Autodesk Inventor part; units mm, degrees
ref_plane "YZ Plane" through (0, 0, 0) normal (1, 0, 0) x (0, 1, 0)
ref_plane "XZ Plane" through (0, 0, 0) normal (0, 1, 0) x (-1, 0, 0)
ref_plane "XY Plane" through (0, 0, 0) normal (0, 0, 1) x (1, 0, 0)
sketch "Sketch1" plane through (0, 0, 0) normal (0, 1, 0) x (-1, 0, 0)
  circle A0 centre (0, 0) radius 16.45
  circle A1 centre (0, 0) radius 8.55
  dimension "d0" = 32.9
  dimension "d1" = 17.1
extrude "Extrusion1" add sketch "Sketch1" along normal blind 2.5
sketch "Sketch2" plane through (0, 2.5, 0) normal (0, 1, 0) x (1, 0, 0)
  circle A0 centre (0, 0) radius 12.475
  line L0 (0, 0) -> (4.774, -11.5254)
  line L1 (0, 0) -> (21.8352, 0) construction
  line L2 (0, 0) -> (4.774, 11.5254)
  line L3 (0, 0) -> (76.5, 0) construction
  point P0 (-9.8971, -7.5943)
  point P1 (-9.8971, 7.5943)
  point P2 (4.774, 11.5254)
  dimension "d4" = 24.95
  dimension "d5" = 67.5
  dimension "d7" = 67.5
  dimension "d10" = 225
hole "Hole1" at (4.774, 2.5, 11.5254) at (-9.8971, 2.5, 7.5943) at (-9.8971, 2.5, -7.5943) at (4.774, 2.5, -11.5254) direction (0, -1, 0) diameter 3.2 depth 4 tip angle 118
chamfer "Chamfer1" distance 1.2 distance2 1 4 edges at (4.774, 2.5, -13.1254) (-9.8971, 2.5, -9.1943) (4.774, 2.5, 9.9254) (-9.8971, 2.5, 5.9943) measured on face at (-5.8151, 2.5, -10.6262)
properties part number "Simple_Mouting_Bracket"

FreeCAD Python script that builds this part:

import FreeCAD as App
import Part
import Sketcher


def edges_at(feature, points):
    """Names of the edges that pass closest to the given points."""
    edges = feature.Shape.Edges
    near = lambda p: min(range(len(edges)), key=lambda i: edges[i].distToShape(Part.Vertex(*p))[0])
    return sorted({f"Edge{near(p) + 1}" for p in points})

doc = App.newDocument("Part")
params = doc.addObject("Spreadsheet::Sheet", "Params")
for row, (alias, value) in enumerate([
    ("sketch1_diameter", "32.9 mm"),
    ("sketch1_diameter2", "17.1 mm"),
    ("pad1_length", "2.5 mm"),
    ("sketch2_diameter", "3.2 mm"),
    ("hole_diameter", "3.2 mm"),
    ("hole_depth", "4 mm"),
    ("chamfer_size", "1.2 mm"),
    ("chamfer_size2", "1 mm"),
], start=1):
    params.set(f"A{row}", alias)
    params.set(f"B{row}", "=" + value)
    params.setAlias(f"B{row}", alias)

body = doc.addObject("PartDesign::Body", "Body")

sketch1 = body.newObject("Sketcher::SketchObject", "Sketch")
sketch1.AttachmentSupport = (doc.getObject("XZ_Plane"), [""])
sketch1.MapMode = "FlatFace"
sketch1.addGeometry([
    Part.Circle(App.Vector(0, 0, 0), App.Vector(0, 0, 1), 16.45),
    Part.Circle(App.Vector(0, 0, 0), App.Vector(0, 0, 1), 8.55),
], False)
sketch1.addConstraint([
    Sketcher.Constraint("Coincident", 0, 3, -1, 1),
    Sketcher.Constraint("Coincident", 1, 3, -1, 1),
    Sketcher.Constraint("Diameter", 0, 32.9),
    Sketcher.Constraint("Diameter", 1, 17.1),
])
sketch1.setExpression("Constraints[2]", "Params.sketch1_diameter")
sketch1.setExpression("Constraints[3]", "Params.sketch1_diameter2")
pad1 = body.newObject("PartDesign::Pad", "Pad")
pad1.Profile = sketch1
pad1.setExpression("Length", "Params.pad1_length")
pad1.Reversed = True

sketch2 = body.newObject("Sketcher::SketchObject", "Sketch001")
sketch2.AttachmentSupport = (doc.getObject("XZ_Plane"), [""])
sketch2.MapMode = "FlatFace"
sketch2.AttachmentOffset = App.Placement(App.Vector(0, 0, -2.5), App.Rotation())
sketch2.addGeometry([
    Part.Circle(App.Vector(4.774, 11.5254, 0), App.Vector(0, 0, 1), 1.6),
    Part.Circle(App.Vector(-9.8971, 7.5943, 0), App.Vector(0, 0, 1), 1.6),
    Part.Circle(App.Vector(-9.8971, -7.5943, 0), App.Vector(0, 0, 1), 1.6),
    Part.Circle(App.Vector(4.774, -11.5254, 0), App.Vector(0, 0, 1), 1.6),
], False)
sketch2.addConstraint([
    Sketcher.Constraint("Equal", 0, 1),
    Sketcher.Constraint("Equal", 1, 2),
    Sketcher.Constraint("Equal", 2, 3),
    Sketcher.Constraint("Symmetric", 1, 3, 2, 3, -1),
    Sketcher.Constraint("Symmetric", 0, 3, 3, 3, -1),
    Sketcher.Constraint("Diameter", 0, 3.2),
    Sketcher.Constraint("DistanceX", -1, 1, 0, 3, 4.774),
    Sketcher.Constraint("DistanceX", 1, 3, -1, 1, 9.897),
    Sketcher.Constraint("DistanceY", 1, 3, 0, 3, 3.931),
    Sketcher.Constraint("DistanceY", -1, 1, 0, 3, 11.5254),
])
sketch2.setExpression("Constraints[5]", "Params.sketch2_diameter")
doc.recompute()
hole = body.newObject("PartDesign::Hole", "Hole")
hole.Profile = sketch2
hole.ThreadType = "None"
hole.setExpression("Diameter", "Params.hole_diameter")
hole.DepthType = "Dimension"
hole.setExpression("Depth", "Params.hole_depth")
hole.DrillPoint = "Angled"
hole.DrillPointAngle = 118
hole.Reversed = True
doc.recompute()

chamfer = body.newObject("PartDesign::Chamfer", "Chamfer")
chamfer.Base = (hole, edges_at(hole, [
    (4.774, 2.5, -13.125),
    (-9.897, 2.5, -9.194),
    (4.774, 2.5, 9.925),
    (-9.897, 2.5, 5.994),
]))
chamfer.ChamferType = "Two distances"
chamfer.setExpression("Size", "Params.chamfer_size")
chamfer.setExpression("Size2", "Params.chamfer_size2")

doc.recompute()
